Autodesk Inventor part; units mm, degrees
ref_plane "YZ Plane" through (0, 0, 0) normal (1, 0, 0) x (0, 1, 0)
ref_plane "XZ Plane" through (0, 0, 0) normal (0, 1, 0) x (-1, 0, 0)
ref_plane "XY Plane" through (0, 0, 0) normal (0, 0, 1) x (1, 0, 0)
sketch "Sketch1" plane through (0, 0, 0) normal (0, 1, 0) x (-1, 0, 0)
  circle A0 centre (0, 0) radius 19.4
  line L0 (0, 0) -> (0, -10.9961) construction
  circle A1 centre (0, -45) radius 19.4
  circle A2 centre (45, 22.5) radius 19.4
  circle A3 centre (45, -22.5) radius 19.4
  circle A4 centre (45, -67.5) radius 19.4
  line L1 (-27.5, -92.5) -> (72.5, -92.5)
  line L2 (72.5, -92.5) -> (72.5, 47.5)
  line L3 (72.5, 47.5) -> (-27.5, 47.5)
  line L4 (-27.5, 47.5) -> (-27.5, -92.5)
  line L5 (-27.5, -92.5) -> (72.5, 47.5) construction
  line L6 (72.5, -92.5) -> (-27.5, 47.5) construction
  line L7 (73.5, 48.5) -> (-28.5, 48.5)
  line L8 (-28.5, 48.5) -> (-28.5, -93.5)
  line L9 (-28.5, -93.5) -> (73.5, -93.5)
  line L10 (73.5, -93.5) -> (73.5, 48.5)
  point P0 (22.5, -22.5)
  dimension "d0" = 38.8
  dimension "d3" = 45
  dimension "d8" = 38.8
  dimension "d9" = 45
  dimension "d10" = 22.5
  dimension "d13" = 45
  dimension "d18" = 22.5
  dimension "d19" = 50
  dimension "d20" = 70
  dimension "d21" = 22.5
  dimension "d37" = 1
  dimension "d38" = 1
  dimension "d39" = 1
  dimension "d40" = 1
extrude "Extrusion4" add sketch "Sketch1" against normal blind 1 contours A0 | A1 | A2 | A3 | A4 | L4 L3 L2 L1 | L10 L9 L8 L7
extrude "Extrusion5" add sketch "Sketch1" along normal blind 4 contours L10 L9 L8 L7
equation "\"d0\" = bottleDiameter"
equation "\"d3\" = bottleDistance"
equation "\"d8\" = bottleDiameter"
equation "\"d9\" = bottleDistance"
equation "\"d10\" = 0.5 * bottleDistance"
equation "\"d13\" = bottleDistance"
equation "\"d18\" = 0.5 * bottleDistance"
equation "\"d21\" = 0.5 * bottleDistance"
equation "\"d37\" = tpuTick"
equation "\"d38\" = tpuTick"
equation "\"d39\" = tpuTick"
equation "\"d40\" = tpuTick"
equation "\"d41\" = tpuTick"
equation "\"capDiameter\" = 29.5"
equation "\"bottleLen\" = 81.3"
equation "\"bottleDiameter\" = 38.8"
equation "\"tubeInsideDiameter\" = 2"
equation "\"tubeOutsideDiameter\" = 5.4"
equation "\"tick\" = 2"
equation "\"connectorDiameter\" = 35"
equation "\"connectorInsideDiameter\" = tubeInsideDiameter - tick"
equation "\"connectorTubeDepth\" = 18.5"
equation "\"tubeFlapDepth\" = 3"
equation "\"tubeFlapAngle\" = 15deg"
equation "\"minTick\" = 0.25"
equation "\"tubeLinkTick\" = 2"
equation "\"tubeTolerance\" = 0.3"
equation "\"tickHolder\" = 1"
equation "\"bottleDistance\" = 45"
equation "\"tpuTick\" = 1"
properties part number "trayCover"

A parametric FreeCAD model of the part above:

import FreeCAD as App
import Part
import Sketcher
from FreeCAD import Vector

doc = App.newDocument("Part")
body = doc.addObject("PartDesign::Body", "Body")

# Sketch on XZ plane
sketch1 = body.newObject("Sketcher::SketchObject", "Sketch")
sketch1.AttachmentSupport = (doc.getObject("XZ_Plane"), [""])
sketch1.MapMode = "FlatFace"
sketch1.addGeometry([
    Part.LineSegment(Vector(-73.5, -93.5, 0), Vector(-73.5, 48.5, 0)),
    Part.LineSegment(Vector(-73.5, 48.5, 0), Vector(28.5, 48.5, 0)),
    Part.LineSegment(Vector(28.5, 48.5, 0), Vector(28.5, -93.5, 0)),
    Part.LineSegment(Vector(28.5, -93.5, 0), Vector(-73.5, -93.5, 0)),
], False)
sketch1.addConstraint([
    Sketcher.Constraint("Coincident", 0, 2, 1, 1),
    Sketcher.Constraint("Coincident", 1, 2, 2, 1),
    Sketcher.Constraint("Coincident", 2, 2, 3, 1),
    Sketcher.Constraint("Coincident", 3, 2, 0, 1),
    Sketcher.Constraint("Vertical", 0),
    Sketcher.Constraint("Horizontal", 1),
    Sketcher.Constraint("Vertical", 2),
    Sketcher.Constraint("Horizontal", 3),
    Sketcher.Constraint("DistanceX", 1, 1, 1, 2, 102.0),
    Sketcher.Constraint("DistanceY", 0, 1, 0, 2, 142.0),
    Sketcher.Constraint("DistanceX", 0, 2, -1, 1, 73.5),
    Sketcher.Constraint("DistanceY", -1, 1, 0, 2, 48.5),
])
pad1 = body.newObject("PartDesign::Pad", "Pad")
pad1.Profile = sketch1
pad1.Length = 1

# Sketch on XZ plane
sketch2 = body.newObject("Sketcher::SketchObject", "Sketch001")
sketch2.AttachmentSupport = (doc.getObject("XZ_Plane"), [""])
sketch2.MapMode = "FlatFace"
sketch2.addGeometry([
    Part.LineSegment(Vector(-73.5, -93.5, 0), Vector(-73.5, 48.5, 0)),  # 0
    Part.LineSegment(Vector(-73.5, 48.5, 0), Vector(28.5, 48.5, 0)),  # 1
    Part.LineSegment(Vector(28.5, 48.5, 0), Vector(28.5, -93.5, 0)),  # 2
    Part.LineSegment(Vector(28.5, -93.5, 0), Vector(-73.5, -93.5, 0)),  # 3
    Part.LineSegment(Vector(-72.5, -92.5, 0), Vector(27.5, -92.5, 0)),  # 4
    Part.LineSegment(Vector(27.5, -92.5, 0), Vector(27.5, 47.5, 0)),  # 5
    Part.LineSegment(Vector(27.5, 47.5, 0), Vector(-72.5, 47.5, 0)),  # 6
    Part.LineSegment(Vector(-72.5, 47.5, 0), Vector(-72.5, -92.5, 0)),  # 7
], False)
sketch2.addConstraint([
    Sketcher.Constraint("Coincident", 0, 2, 1, 1),
    Sketcher.Constraint("Coincident", 1, 2, 2, 1),
    Sketcher.Constraint("Coincident", 2, 2, 3, 1),
    Sketcher.Constraint("Coincident", 3, 2, 0, 1),
    Sketcher.Constraint("Coincident", 4, 2, 5, 1),
    Sketcher.Constraint("Coincident", 5, 2, 6, 1),
    Sketcher.Constraint("Coincident", 6, 2, 7, 1),
    Sketcher.Constraint("Coincident", 7, 2, 4, 1),
    Sketcher.Constraint("Vertical", 0),
    Sketcher.Constraint("Horizontal", 1),
    Sketcher.Constraint("Vertical", 2),
    Sketcher.Constraint("Horizontal", 3),
    Sketcher.Constraint("Horizontal", 4),
    Sketcher.Constraint("Vertical", 5),
    Sketcher.Constraint("Horizontal", 6),
    Sketcher.Constraint("Vertical", 7),
    Sketcher.Constraint("DistanceX", 4, 2, 2, 2, 1.0),
    Sketcher.Constraint("DistanceY", 2, 2, 4, 2, 1.0),
    Sketcher.Constraint("DistanceY", 5, 2, 1, 2, 1.0),
    Sketcher.Constraint("DistanceX", 0, 2, 6, 2, 1.0),
    Sketcher.Constraint("DistanceX", 1, 1, 1, 2, 102.0),
    Sketcher.Constraint("DistanceY", 0, 1, 0, 2, 142.0),
    Sketcher.Constraint("DistanceX", 0, 2, -1, 1, 73.5),
    Sketcher.Constraint("DistanceY", -1, 1, 0, 2, 48.5),
])
pad2 = body.newObject("PartDesign::Pad", "Pad001")
pad2.Profile = sketch2
pad2.Length = 4
pad2.Reversed = True

doc.recompute()
